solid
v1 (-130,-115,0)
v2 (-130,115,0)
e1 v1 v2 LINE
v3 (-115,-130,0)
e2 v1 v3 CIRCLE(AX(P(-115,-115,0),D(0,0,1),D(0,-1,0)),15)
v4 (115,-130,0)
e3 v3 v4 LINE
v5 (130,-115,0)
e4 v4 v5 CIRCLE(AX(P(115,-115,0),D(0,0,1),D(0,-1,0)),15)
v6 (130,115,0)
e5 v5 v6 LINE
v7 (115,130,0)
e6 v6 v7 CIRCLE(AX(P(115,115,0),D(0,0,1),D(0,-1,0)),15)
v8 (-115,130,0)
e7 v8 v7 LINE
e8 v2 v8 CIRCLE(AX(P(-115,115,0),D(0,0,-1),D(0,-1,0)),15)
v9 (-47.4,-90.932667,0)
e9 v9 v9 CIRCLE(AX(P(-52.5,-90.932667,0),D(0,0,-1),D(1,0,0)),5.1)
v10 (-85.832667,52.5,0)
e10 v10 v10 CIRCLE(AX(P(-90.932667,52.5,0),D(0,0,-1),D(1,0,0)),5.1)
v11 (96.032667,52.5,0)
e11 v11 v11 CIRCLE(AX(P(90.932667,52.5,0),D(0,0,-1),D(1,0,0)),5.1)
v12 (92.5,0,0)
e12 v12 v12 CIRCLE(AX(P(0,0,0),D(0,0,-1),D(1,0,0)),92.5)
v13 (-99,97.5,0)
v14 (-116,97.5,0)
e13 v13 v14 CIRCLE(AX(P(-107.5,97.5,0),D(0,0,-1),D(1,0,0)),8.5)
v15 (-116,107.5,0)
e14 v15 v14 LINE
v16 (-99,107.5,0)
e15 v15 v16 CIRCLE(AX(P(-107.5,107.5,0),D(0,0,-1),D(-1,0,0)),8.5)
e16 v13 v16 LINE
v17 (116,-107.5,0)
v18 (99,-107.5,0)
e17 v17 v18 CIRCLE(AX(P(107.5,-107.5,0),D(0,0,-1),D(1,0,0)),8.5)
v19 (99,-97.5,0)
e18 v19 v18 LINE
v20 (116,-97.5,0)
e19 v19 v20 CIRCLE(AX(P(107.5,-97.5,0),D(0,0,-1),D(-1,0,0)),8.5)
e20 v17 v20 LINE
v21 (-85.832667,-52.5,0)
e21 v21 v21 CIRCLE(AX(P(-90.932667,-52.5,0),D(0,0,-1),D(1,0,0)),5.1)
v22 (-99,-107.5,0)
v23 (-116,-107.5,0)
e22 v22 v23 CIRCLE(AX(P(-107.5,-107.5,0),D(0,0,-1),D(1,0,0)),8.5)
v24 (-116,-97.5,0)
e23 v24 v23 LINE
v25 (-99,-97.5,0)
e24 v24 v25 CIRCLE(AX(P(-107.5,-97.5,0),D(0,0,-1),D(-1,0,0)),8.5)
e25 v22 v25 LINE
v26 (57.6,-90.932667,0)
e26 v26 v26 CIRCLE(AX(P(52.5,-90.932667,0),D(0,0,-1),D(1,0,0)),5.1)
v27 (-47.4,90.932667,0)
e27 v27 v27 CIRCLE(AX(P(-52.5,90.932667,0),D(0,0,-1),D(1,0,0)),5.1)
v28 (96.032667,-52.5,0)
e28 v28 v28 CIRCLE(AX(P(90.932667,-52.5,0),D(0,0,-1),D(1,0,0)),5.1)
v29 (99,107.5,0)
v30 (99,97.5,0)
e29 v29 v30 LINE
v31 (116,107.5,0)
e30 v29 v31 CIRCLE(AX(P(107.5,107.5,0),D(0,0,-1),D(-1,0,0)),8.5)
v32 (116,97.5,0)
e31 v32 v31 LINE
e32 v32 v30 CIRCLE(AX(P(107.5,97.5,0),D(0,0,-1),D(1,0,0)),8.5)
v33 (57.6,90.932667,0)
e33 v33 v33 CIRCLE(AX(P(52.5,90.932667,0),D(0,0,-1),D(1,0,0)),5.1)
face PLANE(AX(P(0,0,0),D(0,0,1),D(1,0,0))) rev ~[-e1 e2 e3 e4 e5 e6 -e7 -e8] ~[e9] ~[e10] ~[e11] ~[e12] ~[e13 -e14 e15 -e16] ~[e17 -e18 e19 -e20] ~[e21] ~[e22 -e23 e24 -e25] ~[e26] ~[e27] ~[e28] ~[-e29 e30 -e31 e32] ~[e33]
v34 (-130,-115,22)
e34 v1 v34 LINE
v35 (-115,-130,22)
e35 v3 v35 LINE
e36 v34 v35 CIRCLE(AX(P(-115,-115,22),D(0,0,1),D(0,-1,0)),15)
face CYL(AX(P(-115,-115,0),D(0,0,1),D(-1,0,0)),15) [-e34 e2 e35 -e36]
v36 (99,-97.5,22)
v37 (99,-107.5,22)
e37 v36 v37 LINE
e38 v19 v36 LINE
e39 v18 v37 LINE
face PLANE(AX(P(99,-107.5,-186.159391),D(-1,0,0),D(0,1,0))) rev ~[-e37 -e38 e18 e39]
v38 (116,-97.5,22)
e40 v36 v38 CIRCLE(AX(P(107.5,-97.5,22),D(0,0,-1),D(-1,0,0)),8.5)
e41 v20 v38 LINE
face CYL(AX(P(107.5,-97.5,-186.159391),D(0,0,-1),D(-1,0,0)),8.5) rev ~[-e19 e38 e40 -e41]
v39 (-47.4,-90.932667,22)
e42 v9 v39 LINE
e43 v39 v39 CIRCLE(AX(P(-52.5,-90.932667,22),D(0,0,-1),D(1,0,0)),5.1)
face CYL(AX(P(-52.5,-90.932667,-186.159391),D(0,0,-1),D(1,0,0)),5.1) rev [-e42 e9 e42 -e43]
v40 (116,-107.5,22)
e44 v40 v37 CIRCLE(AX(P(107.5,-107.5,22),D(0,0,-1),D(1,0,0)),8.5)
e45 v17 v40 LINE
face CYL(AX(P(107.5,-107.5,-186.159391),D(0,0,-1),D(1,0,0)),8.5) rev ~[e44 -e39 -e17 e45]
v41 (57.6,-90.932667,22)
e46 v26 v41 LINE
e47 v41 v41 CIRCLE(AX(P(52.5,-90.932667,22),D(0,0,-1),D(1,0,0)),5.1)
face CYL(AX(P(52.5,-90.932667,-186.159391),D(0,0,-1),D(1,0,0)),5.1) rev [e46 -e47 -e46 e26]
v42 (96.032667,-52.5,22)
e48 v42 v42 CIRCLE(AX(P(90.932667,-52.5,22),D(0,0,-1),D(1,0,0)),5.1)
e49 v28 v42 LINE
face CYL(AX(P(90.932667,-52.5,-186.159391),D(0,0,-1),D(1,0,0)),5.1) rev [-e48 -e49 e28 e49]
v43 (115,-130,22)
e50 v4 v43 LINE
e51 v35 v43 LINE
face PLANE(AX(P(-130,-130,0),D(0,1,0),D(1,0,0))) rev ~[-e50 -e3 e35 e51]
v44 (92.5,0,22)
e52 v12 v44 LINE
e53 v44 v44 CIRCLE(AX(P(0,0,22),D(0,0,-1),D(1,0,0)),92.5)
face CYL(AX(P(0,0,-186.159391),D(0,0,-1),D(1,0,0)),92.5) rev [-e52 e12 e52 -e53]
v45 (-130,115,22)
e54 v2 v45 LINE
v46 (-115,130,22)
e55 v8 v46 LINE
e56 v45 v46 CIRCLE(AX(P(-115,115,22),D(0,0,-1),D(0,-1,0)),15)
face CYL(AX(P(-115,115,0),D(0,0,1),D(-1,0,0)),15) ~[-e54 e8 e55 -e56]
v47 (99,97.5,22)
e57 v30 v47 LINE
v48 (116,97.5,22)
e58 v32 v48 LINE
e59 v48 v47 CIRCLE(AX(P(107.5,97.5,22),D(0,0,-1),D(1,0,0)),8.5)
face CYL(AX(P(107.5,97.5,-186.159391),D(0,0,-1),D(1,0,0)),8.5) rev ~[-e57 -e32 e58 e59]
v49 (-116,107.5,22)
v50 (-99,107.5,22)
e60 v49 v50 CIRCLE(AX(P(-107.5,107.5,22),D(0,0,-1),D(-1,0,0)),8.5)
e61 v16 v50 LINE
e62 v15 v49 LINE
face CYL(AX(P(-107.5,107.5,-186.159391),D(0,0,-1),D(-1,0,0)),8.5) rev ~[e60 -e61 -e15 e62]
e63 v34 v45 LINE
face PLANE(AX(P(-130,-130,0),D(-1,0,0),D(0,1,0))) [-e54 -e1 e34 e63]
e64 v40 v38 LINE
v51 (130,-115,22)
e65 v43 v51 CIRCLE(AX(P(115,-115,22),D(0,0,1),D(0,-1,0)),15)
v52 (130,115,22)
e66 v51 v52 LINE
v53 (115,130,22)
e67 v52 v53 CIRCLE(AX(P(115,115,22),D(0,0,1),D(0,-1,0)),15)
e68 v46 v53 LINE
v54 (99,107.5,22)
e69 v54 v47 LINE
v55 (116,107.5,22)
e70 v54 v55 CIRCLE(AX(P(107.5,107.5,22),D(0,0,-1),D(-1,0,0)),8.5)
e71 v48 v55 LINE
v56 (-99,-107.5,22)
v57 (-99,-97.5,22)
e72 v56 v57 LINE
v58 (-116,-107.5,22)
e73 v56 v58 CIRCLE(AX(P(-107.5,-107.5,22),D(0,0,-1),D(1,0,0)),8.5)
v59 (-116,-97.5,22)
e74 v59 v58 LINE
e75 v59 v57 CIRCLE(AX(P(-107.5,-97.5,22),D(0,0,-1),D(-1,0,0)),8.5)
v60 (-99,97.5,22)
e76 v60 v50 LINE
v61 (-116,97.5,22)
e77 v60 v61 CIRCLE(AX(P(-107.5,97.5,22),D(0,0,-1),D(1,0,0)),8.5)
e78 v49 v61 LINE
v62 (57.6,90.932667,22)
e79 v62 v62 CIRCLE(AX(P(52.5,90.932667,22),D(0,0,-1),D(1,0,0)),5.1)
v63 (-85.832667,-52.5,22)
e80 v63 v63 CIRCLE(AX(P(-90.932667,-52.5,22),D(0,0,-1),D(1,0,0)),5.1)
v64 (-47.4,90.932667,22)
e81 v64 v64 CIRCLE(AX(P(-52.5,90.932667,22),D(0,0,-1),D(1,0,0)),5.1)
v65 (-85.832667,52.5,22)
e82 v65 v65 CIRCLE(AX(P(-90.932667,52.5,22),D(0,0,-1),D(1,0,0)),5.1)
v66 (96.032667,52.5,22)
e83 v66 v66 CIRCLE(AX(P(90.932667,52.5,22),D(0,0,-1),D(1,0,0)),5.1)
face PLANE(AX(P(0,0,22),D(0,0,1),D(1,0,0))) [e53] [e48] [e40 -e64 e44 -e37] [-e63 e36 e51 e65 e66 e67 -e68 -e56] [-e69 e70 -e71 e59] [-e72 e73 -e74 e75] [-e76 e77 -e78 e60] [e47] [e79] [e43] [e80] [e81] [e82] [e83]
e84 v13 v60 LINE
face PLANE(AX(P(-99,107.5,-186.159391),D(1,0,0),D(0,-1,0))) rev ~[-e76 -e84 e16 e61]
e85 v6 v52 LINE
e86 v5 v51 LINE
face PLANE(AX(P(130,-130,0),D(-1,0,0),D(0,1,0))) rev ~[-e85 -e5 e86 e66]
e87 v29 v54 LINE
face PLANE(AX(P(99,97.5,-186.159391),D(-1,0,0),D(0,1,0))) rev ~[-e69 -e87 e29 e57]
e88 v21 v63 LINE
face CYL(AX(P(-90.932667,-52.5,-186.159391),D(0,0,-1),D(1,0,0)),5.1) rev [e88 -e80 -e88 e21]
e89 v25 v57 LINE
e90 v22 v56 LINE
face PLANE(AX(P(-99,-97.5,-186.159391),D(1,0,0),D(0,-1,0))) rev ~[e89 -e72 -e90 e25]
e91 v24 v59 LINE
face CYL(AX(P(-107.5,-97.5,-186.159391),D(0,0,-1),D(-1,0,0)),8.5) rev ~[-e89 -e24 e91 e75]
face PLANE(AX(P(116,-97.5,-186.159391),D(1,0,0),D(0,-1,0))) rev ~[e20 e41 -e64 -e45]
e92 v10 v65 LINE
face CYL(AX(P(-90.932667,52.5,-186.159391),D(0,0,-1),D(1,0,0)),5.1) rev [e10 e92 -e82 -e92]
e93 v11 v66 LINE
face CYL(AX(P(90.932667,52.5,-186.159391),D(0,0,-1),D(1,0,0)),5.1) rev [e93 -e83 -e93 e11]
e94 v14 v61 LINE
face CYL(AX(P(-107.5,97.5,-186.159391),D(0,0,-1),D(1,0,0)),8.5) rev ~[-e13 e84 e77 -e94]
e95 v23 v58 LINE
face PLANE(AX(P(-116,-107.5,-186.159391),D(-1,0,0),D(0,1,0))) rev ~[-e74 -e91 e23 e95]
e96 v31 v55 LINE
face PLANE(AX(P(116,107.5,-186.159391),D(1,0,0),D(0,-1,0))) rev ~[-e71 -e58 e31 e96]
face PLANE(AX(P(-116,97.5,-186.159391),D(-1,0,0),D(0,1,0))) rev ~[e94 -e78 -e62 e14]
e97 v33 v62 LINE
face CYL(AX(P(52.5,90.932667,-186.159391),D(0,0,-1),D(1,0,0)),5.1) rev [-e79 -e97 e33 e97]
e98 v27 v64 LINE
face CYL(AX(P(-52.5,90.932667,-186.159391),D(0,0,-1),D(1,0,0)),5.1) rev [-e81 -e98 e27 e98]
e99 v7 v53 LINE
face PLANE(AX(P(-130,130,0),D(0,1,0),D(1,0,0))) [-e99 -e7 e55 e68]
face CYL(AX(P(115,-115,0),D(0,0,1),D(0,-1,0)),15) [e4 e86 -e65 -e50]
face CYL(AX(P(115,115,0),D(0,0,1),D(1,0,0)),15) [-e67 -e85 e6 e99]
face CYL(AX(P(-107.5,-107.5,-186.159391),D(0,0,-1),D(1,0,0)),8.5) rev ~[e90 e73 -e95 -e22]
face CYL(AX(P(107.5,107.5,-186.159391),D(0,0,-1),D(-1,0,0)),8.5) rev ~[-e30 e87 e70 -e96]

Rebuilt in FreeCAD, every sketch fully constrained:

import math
import FreeCAD as App
import Part
import Sketcher
Q = App.Units.Quantity


def edges_at(feature, points):
    """Names of the edges that pass closest to the given points."""
    edges = feature.Shape.Edges
    near = lambda p: min(range(len(edges)), key=lambda i: edges[i].distToShape(Part.Vertex(*p))[0])
    return sorted({f"Edge{near(p) + 1}" for p in points})

doc = App.newDocument("Part")
body = doc.addObject("PartDesign::Body", "Body")

# Sketch on XY plane
sketch1 = doc.addObject("Sketcher::SketchObject", "Sketch")
body.addObject(sketch1)
sketch1.AttachmentSupport = (doc.XY_Plane, [""])
sketch1.MapMode = "FlatFace"
sketch1.addGeometry(Part.LineSegment(App.Vector(-130, 130, 0), App.Vector(-130, -130, 0)), False)
sketch1.addGeometry(Part.LineSegment(App.Vector(-130, -130, 0), App.Vector(130, -130, 0)), False)
sketch1.addGeometry(Part.LineSegment(App.Vector(130, -130, 0), App.Vector(130, 130, 0)), False)
sketch1.addGeometry(Part.LineSegment(App.Vector(130, 130, 0), App.Vector(-130, 130, 0)), False)
sketch1.addConstraint(Sketcher.Constraint("Coincident", 0, 2, 1, 1))
sketch1.addConstraint(Sketcher.Constraint("Coincident", 1, 2, 2, 1))
sketch1.addConstraint(Sketcher.Constraint("Coincident", 2, 2, 3, 1))
sketch1.addConstraint(Sketcher.Constraint("Coincident", 3, 2, 0, 1))
sketch1.addConstraint(Sketcher.Constraint("Vertical", 0))
sketch1.addConstraint(Sketcher.Constraint("Horizontal", 1))
sketch1.addConstraint(Sketcher.Constraint("Vertical", 2))
sketch1.addConstraint(Sketcher.Constraint("Horizontal", 3))
sketch1.addConstraint(Sketcher.Constraint("Symmetric", 0, 2, 2, 2, -1, 1))
sketch1.addConstraint(Sketcher.Constraint("Equal", 3, 0))
sketch1.addConstraint(Sketcher.Constraint("DistanceX", 1, 1, 1, 2, Q("260 mm")))
pad1 = doc.addObject("PartDesign::Pad", "Pad")
body.addObject(pad1)
pad1.Profile = sketch1
pad1.Length = 22
doc.recompute()

fillet = doc.addObject("PartDesign::Fillet", "Fillet")
body.addObject(fillet)
fillet.Base = (pad1, edges_at(pad1, [
    (-130, 130, 11),
    (130, 130, 11),
    (130, -130, 11),
    (-130, -130, 11),
]))
fillet.Radius = 15

# Sketch on XY plane
sketch2 = doc.addObject("Sketcher::SketchObject", "Sketch001")
body.addObject(sketch2)
sketch2.AttachmentSupport = (doc.XY_Plane, [""])
sketch2.MapMode = "FlatFace"
sketch2.addGeometry(Part.Circle(App.Vector(0, 0, 0), App.Vector(0, 0, 1), 92.5), False)
sketch2.addGeometry(Part.Circle(App.Vector(90.932667, 52.5, 0), App.Vector(0, 0, 1), 5.1), False)
sketch2.addGeometry(Part.Circle(App.Vector(52.5, 90.932667, 0), App.Vector(0, 0, 1), 5.1), False)
sketch2.addGeometry(Part.Circle(App.Vector(-52.5, 90.932667, 0), App.Vector(0, 0, 1), 5.1), False)
sketch2.addGeometry(Part.Circle(App.Vector(-90.932667, 52.5, 0), App.Vector(0, 0, 1), 5.1), False)
sketch2.addGeometry(Part.Circle(App.Vector(-90.932667, -52.5, 0), App.Vector(0, 0, 1), 5.1), False)
sketch2.addGeometry(Part.Circle(App.Vector(-52.5, -90.932667, 0), App.Vector(0, 0, 1), 5.1), False)
sketch2.addGeometry(Part.Circle(App.Vector(52.5, -90.932667, 0), App.Vector(0, 0, 1), 5.1), False)
sketch2.addGeometry(Part.Circle(App.Vector(90.932667, -52.5, 0), App.Vector(0, 0, 1), 5.1), False)
sketch2.addConstraint(Sketcher.Constraint("Coincident", 0, 3, -1, 1))
sketch2.addConstraint(Sketcher.Constraint("Equal", 1, 2))
sketch2.addConstraint(Sketcher.Constraint("Equal", 2, 3))
sketch2.addConstraint(Sketcher.Constraint("Equal", 3, 4))
sketch2.addConstraint(Sketcher.Constraint("Equal", 4, 5))
sketch2.addConstraint(Sketcher.Constraint("Equal", 5, 6))
sketch2.addConstraint(Sketcher.Constraint("Equal", 6, 7))
sketch2.addConstraint(Sketcher.Constraint("Equal", 7, 8))
sketch2.addConstraint(Sketcher.Constraint("Symmetric", 1, 3, 5, 3, -1, 1))
sketch2.addConstraint(Sketcher.Constraint("Symmetric", 2, 3, 6, 3, -1, 1))
sketch2.addConstraint(Sketcher.Constraint("Symmetric", 3, 3, 7, 3, -1, 1))
sketch2.addConstraint(Sketcher.Constraint("Symmetric", 4, 3, 8, 3, -1, 1))
sketch2.addConstraint(Sketcher.Constraint("Symmetric", 2, 3, 3, 3, -2))
sketch2.addConstraint(Sketcher.Constraint("Symmetric", 1, 3, 4, 3, -2))
sketch2.addConstraint(Sketcher.Constraint("Diameter", 0, Q("185 mm")))
sketch2.addConstraint(Sketcher.Constraint("Diameter", 1, Q("10.2 mm")))
sketch2.addConstraint(Sketcher.Constraint("DistanceX", 3, 3, 2, 3, Q("105 mm")))
sketch2.addConstraint(Sketcher.Constraint("DistanceY", 5, 3, 4, 3, Q("105 mm")))
sketch2.addConstraint(Sketcher.Constraint("DistanceX", -1, 1, 1, 3, Q("90.932667 mm")))
sketch2.addConstraint(Sketcher.Constraint("DistanceY", -1, 1, 2, 3, Q("90.932667 mm")))
pocket1 = doc.addObject("PartDesign::Pocket", "Pocket")
body.addObject(pocket1)
pocket1.Profile = sketch2
pocket1.Type = "ThroughAll"
pocket1.Midplane = True

# Sketch on XY plane
sketch3 = doc.addObject("Sketcher::SketchObject", "Sketch002")
body.addObject(sketch3)
sketch3.AttachmentSupport = (doc.XY_Plane, [""])
sketch3.MapMode = "FlatFace"
sketch3.addGeometry(Part.LineSegment(App.Vector(-116, -97.5, 0), App.Vector(-116, -107.5, 0)), False)
sketch3.addGeometry(Part.ArcOfCircle(Part.Circle(App.Vector(-107.5, -107.5, 0), App.Vector(0, 0, 1), 8.5), math.radians(180), math.radians(360)), False)
sketch3.addGeometry(Part.LineSegment(App.Vector(-99, -107.5, 0), App.Vector(-99, -97.5, 0)), False)
sketch3.addGeometry(Part.ArcOfCircle(Part.Circle(App.Vector(-107.5, -97.5, 0), App.Vector(0, 0, 1), 8.5), math.radians(0), math.radians(180)), False)
sketch3.addGeometry(Part.LineSegment(App.Vector(-116, 107.5, 0), App.Vector(-116, 97.5, 0)), False)
sketch3.addGeometry(Part.ArcOfCircle(Part.Circle(App.Vector(-107.5, 97.5, 0), App.Vector(0, 0, 1), 8.5), math.radians(180), math.radians(360)), False)
sketch3.addGeometry(Part.LineSegment(App.Vector(-99, 97.5, 0), App.Vector(-99, 107.5, 0)), False)
sketch3.addGeometry(Part.ArcOfCircle(Part.Circle(App.Vector(-107.5, 107.5, 0), App.Vector(0, 0, 1), 8.5), math.radians(0), math.radians(180)), False)
sketch3.addGeometry(Part.LineSegment(App.Vector(99, -97.5, 0), App.Vector(99, -107.5, 0)), False)
sketch3.addGeometry(Part.ArcOfCircle(Part.Circle(App.Vector(107.5, -107.5, 0), App.Vector(0, 0, 1), 8.5), math.radians(180), math.radians(360)), False)
sketch3.addGeometry(Part.LineSegment(App.Vector(116, -107.5, 0), App.Vector(116, -97.5, 0)), False)
sketch3.addGeometry(Part.ArcOfCircle(Part.Circle(App.Vector(107.5, -97.5, 0), App.Vector(0, 0, 1), 8.5), math.radians(0), math.radians(180)), False)
sketch3.addGeometry(Part.LineSegment(App.Vector(99, 107.5, 0), App.Vector(99, 97.5, 0)), False)
sketch3.addGeometry(Part.ArcOfCircle(Part.Circle(App.Vector(107.5, 97.5, 0), App.Vector(0, 0, 1), 8.5), math.radians(180), math.radians(360)), False)
sketch3.addGeometry(Part.LineSegment(App.Vector(116, 97.5, 0), App.Vector(116, 107.5, 0)), False)
sketch3.addGeometry(Part.ArcOfCircle(Part.Circle(App.Vector(107.5, 107.5, 0), App.Vector(0, 0, 1), 8.5), math.radians(0), math.radians(180)), False)
sketch3.addConstraint(Sketcher.Constraint("Tangent", 0, 2, 1, 1))
sketch3.addConstraint(Sketcher.Constraint("Tangent", 1, 2, 2, 1))
sketch3.addConstraint(Sketcher.Constraint("Tangent", 2, 2, 3, 1))
sketch3.addConstraint(Sketcher.Constraint("Tangent", 3, 2, 0, 1))
sketch3.addConstraint(Sketcher.Constraint("Tangent", 4, 2, 5, 1))
sketch3.addConstraint(Sketcher.Constraint("Tangent", 5, 2, 6, 1))
sketch3.addConstraint(Sketcher.Constraint("Tangent", 6, 2, 7, 1))
sketch3.addConstraint(Sketcher.Constraint("Tangent", 7, 2, 4, 1))
sketch3.addConstraint(Sketcher.Constraint("Tangent", 8, 2, 9, 1))
sketch3.addConstraint(Sketcher.Constraint("Tangent", 9, 2, 10, 1))
sketch3.addConstraint(Sketcher.Constraint("Tangent", 10, 2, 11, 1))
sketch3.addConstraint(Sketcher.Constraint("Tangent", 11, 2, 8, 1))
sketch3.addConstraint(Sketcher.Constraint("Tangent", 12, 2, 13, 1))
sketch3.addConstraint(Sketcher.Constraint("Tangent", 13, 2, 14, 1))
sketch3.addConstraint(Sketcher.Constraint("Tangent", 14, 2, 15, 1))
sketch3.addConstraint(Sketcher.Constraint("Tangent", 15, 2, 12, 1))
sketch3.addConstraint(Sketcher.Constraint("Vertical", 0))
sketch3.addConstraint(Sketcher.Constraint("Vertical", 2))
sketch3.addConstraint(Sketcher.Constraint("Vertical", 4))
sketch3.addConstraint(Sketcher.Constraint("Vertical", 6))
sketch3.addConstraint(Sketcher.Constraint("Vertical", 8))
sketch3.addConstraint(Sketcher.Constraint("Vertical", 10))
sketch3.addConstraint(Sketcher.Constraint("Vertical", 12))
sketch3.addConstraint(Sketcher.Constraint("Vertical", 14))
sketch3.addConstraint(Sketcher.Constraint("Equal", 3, 5))
sketch3.addConstraint(Sketcher.Constraint("Equal", 7, 9))
sketch3.addConstraint(Sketcher.Constraint("Equal", 11, 13))
sketch3.addConstraint(Sketcher.Constraint("Symmetric", 7, 3, 9, 3, -1, 1))
sketch3.addConstraint(Sketcher.Constraint("Symmetric", 3, 3, 13, 3, -1, 1))
sketch3.addConstraint(Sketcher.Constraint("Symmetric", 1, 3, 9, 3, -2))
sketch3.addConstraint(Sketcher.Constraint("Horizontal", 3, 3, 11, 3))
sketch3.addConstraint(Sketcher.Constraint("Horizontal", 5, 3, 13, 3))
sketch3.addConstraint(Sketcher.Constraint("Horizontal", 7, 3, 15, 3))
sketch3.addConstraint(Sketcher.Constraint("Radius", 1, Q("8.5 mm")))
sketch3.addConstraint(Sketcher.Constraint("DistanceY", 0, 2, 0, 1, Q("10 mm")))
sketch3.addConstraint(Sketcher.Constraint("DistanceX", 0, 2, -1, 1, Q("116 mm")))
sketch3.addConstraint(Sketcher.Constraint("DistanceY", 3, 3, 5, 3, Q("195 mm")))
pocket2 = doc.addObject("PartDesign::Pocket", "Pocket001")
body.addObject(pocket2)
pocket2.Profile = sketch3
pocket2.Type = "ThroughAll"
pocket2.Midplane = True

doc.recompute()
